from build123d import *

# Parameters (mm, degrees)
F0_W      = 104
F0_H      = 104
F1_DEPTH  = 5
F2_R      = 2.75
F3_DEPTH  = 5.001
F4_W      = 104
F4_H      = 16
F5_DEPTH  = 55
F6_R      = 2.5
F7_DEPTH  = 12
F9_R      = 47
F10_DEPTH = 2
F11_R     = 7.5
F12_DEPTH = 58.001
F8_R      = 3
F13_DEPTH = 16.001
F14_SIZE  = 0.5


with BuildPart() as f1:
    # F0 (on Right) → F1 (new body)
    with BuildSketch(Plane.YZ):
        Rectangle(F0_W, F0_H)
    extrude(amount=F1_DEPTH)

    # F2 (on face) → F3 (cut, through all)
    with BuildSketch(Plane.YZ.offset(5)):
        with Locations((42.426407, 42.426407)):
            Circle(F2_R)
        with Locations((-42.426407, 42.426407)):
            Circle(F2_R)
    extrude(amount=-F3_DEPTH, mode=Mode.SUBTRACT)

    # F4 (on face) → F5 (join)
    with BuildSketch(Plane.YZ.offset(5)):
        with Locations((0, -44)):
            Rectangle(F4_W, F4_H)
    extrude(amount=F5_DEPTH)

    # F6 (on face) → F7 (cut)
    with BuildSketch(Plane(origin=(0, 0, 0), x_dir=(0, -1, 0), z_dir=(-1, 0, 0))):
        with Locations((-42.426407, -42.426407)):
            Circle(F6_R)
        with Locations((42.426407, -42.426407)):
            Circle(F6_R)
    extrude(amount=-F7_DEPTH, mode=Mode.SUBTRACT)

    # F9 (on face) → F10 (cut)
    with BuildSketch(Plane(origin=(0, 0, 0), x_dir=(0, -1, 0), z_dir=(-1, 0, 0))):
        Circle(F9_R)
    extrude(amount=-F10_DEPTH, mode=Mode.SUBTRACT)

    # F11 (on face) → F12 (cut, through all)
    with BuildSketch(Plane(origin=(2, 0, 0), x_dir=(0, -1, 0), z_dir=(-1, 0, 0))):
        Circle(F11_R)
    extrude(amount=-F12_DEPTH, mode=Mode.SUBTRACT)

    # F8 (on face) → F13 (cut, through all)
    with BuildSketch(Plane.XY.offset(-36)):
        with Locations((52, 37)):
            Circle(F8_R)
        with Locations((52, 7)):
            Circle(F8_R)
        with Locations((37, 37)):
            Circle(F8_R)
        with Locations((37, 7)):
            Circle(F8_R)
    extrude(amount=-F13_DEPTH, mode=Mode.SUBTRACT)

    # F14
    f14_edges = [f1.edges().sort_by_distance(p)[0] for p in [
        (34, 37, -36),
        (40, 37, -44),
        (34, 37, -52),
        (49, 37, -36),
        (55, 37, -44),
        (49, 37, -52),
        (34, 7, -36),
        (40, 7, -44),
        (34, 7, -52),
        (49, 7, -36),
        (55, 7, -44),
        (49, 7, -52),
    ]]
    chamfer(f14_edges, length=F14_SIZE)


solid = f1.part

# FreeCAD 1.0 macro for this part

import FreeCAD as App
import Part
import Sketcher

V = App.Vector


def edges_at(feature, points):
    """Names of the edges that pass closest to the given points."""
    edges = feature.Shape.Edges
    near = lambda p: min(range(len(edges)), key=lambda i: edges[i].distToShape(Part.Vertex(*p))[0])
    return sorted({f"Edge{near(p) + 1}" for p in points})

doc = App.newDocument("Part")
body = doc.addObject("PartDesign::Body", "Body")

# Sketch on YZ plane
sketch1 = body.newObject("Sketcher::SketchObject", "Sketch")
sketch1.AttachmentSupport = (doc.getObject("YZ_Plane"), [""])
sketch1.MapMode = "FlatFace"
sketch1.addGeometry([
    Part.LineSegment(V(-52, 52, 0), V(-52, -52, 0)),
    Part.LineSegment(V(-52, -52, 0), V(52, -52, 0)),
    Part.LineSegment(V(52, -52, 0), V(52, 52, 0)),
    Part.LineSegment(V(52, 52, 0), V(-52, 52, 0)),
], False)
sketch1.addConstraint([
    Sketcher.Constraint("Coincident", 0, 2, 1, 1),
    Sketcher.Constraint("Coincident", 1, 2, 2, 1),
    Sketcher.Constraint("Coincident", 2, 2, 3, 1),
    Sketcher.Constraint("Coincident", 3, 2, 0, 1),
    Sketcher.Constraint("Vertical", 0),
    Sketcher.Constraint("Horizontal", 1),
    Sketcher.Constraint("Vertical", 2),
    Sketcher.Constraint("Horizontal", 3),
    Sketcher.Constraint("Symmetric", 0, 2, 2, 2, -1, 1),
    Sketcher.Constraint("Equal", 3, 0),
    Sketcher.Constraint("DistanceX", 1, 1, 1, 2, 104.0),
])
pad1 = body.newObject("PartDesign::Pad", "Pad")
pad1.Profile = sketch1
pad1.Length = 5

# Sketch on YZ plane
sketch2 = body.newObject("Sketcher::SketchObject", "Sketch001")
sketch2.AttachmentSupport = (doc.getObject("YZ_Plane"), [""])
sketch2.MapMode = "FlatFace"
sketch2.AttachmentOffset = App.Placement(V(0, 0, 5), App.Rotation())
sketch2.addGeometry([
    Part.Circle(V(42.4, 42.4, 0), V(0, 0, 1), 2.8),
    Part.Circle(V(-42.4, 42.4, 0), V(0, 0, 1), 2.8),
], False)
sketch2.addConstraint([
    Sketcher.Constraint("Equal", 0, 1),
    Sketcher.Constraint("Symmetric", 0, 3, 1, 3, -2),
    Sketcher.Constraint("Diameter", 0, 5.5),
    Sketcher.Constraint("DistanceX", -1, 1, 0, 3, 42.426407),
    Sketcher.Constraint("DistanceY", -1, 1, 0, 3, 42.426407),
])
pocket1 = body.newObject("PartDesign::Pocket", "Pocket")
pocket1.Profile = sketch2
pocket1.Type = "ThroughAll"

# Sketch on YZ plane
sketch3 = body.newObject("Sketcher::SketchObject", "Sketch002")
sketch3.AttachmentSupport = (doc.getObject("YZ_Plane"), [""])
sketch3.MapMode = "FlatFace"
sketch3.AttachmentOffset = App.Placement(V(0, 0, 5), App.Rotation())
sketch3.addGeometry([
    Part.LineSegment(V(-52, -36, 0), V(-52, -52, 0)),
    Part.LineSegment(V(-52, -52, 0), V(52, -52, 0)),
    Part.LineSegment(V(52, -52, 0), V(52, -36, 0)),
    Part.LineSegment(V(52, -36, 0), V(-52, -36, 0)),
], False)
sketch3.addConstraint([
    Sketcher.Constraint("Coincident", 0, 2, 1, 1),
    Sketcher.Constraint("Coincident", 1, 2, 2, 1),
    Sketcher.Constraint("Coincident", 2, 2, 3, 1),
    Sketcher.Constraint("Coincident", 3, 2, 0, 1),
    Sketcher.Constraint("Vertical", 0),
    Sketcher.Constraint("Horizontal", 1),
    Sketcher.Constraint("Vertical", 2),
    Sketcher.Constraint("Horizontal", 3),
    Sketcher.Constraint("DistanceX", 1, 1, 1, 2, 104.0),
    Sketcher.Constraint("DistanceY", 0, 2, 0, 1, 16.0),
    Sketcher.Constraint("DistanceX", 0, 2, -1, 1, 52.0),
    Sketcher.Constraint("DistanceY", 0, 2, -1, 1, 52.0),
])
pad2 = body.newObject("PartDesign::Pad", "Pad001")
pad2.Profile = sketch3
pad2.Length = 55

# Sketch on YZ plane
sketch4 = body.newObject("Sketcher::SketchObject", "Sketch003")
sketch4.AttachmentSupport = (doc.getObject("YZ_Plane"), [""])
sketch4.MapMode = "FlatFace"
sketch4.addGeometry([
    Part.Circle(V(42.4, -42.4, 0), V(0, 0, 1), 2.5),
    Part.Circle(V(-42.4, -42.4, 0), V(0, 0, 1), 2.5),
], False)
sketch4.addConstraint([
    Sketcher.Constraint("Equal", 0, 1),
    Sketcher.Constraint("Symmetric", 0, 3, 1, 3, -2),
    Sketcher.Constraint("Diameter", 0, 5.0),
    Sketcher.Constraint("DistanceX", -1, 1, 0, 3, 42.426407),
    Sketcher.Constraint("DistanceY", 0, 3, -1, 1, 42.426407),
])
pocket2 = body.newObject("PartDesign::Pocket", "Pocket001")
pocket2.Profile = sketch4
pocket2.Length = 12
pocket2.Reversed = True

# Sketch on YZ plane
sketch5 = body.newObject("Sketcher::SketchObject", "Sketch004")
sketch5.AttachmentSupport = (doc.getObject("YZ_Plane"), [""])
sketch5.MapMode = "FlatFace"
sketch5.addGeometry(Part.Circle(V(0, 0, 0), V(0, 0, 1), 47), False)
sketch5.addConstraint([
    Sketcher.Constraint("Coincident", 0, 3, -1, 1),
    Sketcher.Constraint("Diameter", 0, 94.0),
])
pocket3 = body.newObject("PartDesign::Pocket", "Pocket002")
pocket3.Profile = sketch5
pocket3.Length = 2
pocket3.Reversed = True

# Sketch on YZ plane
sketch6 = body.newObject("Sketcher::SketchObject", "Sketch005")
sketch6.AttachmentSupport = (doc.getObject("YZ_Plane"), [""])
sketch6.MapMode = "FlatFace"
sketch6.AttachmentOffset = App.Placement(V(0, 0, 2), App.Rotation())
sketch6.addGeometry(Part.Circle(V(0, 0, 0), V(0, 0, 1), 8), False)
sketch6.addConstraint([
    Sketcher.Constraint("Coincident", 0, 3, -1, 1),
    Sketcher.Constraint("Diameter", 0, 15.0),
])
pocket4 = body.newObject("PartDesign::Pocket", "Pocket003")
pocket4.Profile = sketch6
pocket4.Type = "ThroughAll"
pocket4.Reversed = True

# Sketch on XY plane
sketch7 = body.newObject("Sketcher::SketchObject", "Sketch006")
sketch7.AttachmentSupport = (doc.getObject("XY_Plane"), [""])
sketch7.MapMode = "FlatFace"
sketch7.AttachmentOffset = App.Placement(V(0, 0, -36), App.Rotation())
sketch7.addGeometry([
    Part.Circle(V(52, 37, 0), V(0, 0, 1), 3),
    Part.Circle(V(52, 7, 0), V(0, 0, 1), 3),
    Part.Circle(V(37, 37, 0), V(0, 0, 1), 3),
    Part.Circle(V(37, 7, 0), V(0, 0, 1), 3),
], False)
sketch7.addConstraint([
    Sketcher.Constraint("Equal", 0, 1),
    Sketcher.Constraint("Equal", 1, 2),
    Sketcher.Constraint("Equal", 2, 3),
    Sketcher.Constraint("Horizontal", 0, 3, 2, 3),
    Sketcher.Constraint("Horizontal", 1, 3, 3, 3),
    Sketcher.Constraint("Vertical", 0, 3, 1, 3),
    Sketcher.Constraint("Vertical", 2, 3, 3, 3),
    Sketcher.Constraint("Diameter", 0, 6.0),
    Sketcher.Constraint("DistanceX", -1, 1, 0, 3, 52.0),
    Sketcher.Constraint("DistanceY", -1, 1, 0, 3, 37.0),
    Sketcher.Constraint("DistanceY", -1, 1, 1, 3, 7.0),
    Sketcher.Constraint("DistanceX", -1, 1, 2, 3, 37.0),
])
pocket5 = body.newObject("PartDesign::Pocket", "Pocket004")
pocket5.Profile = sketch7
pocket5.Type = "ThroughAll"
doc.recompute()

chamfer = body.newObject("PartDesign::Chamfer", "Chamfer")
chamfer.Base = (pocket5, edges_at(pocket5, [
    (34, 37, -36),
    (40, 37, -44),
    (34, 37, -52),
    (49, 37, -36),
    (55, 37, -44),
    (49, 37, -52),
    (34, 7, -36),
    (40, 7, -44),
    (34, 7, -52),
    (49, 7, -36),
    (55, 7, -44),
    (49, 7, -52),
]))
chamfer.Size = 0.5

doc.recompute()
